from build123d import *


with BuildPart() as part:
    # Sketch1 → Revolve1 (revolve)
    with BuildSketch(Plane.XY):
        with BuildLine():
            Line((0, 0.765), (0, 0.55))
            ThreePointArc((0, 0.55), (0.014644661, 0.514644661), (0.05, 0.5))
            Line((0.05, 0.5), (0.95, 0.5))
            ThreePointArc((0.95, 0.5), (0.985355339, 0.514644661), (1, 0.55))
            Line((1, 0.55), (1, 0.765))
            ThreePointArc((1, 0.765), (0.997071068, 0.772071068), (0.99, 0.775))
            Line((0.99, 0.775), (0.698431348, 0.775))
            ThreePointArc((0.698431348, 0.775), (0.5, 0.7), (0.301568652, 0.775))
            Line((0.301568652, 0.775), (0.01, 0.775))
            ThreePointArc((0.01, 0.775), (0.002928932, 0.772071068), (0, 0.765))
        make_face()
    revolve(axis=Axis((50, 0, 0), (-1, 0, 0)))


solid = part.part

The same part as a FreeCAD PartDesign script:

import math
import FreeCAD as App
import Part
import Sketcher
from FreeCAD import Vector

doc = App.newDocument("Part")
body = doc.addObject("PartDesign::Body", "Body")

# Sketch on XY plane
sketch1 = body.newObject("Sketcher::SketchObject", "Sketch")
sketch1.AttachmentSupport = (doc.getObject("XY_Plane"), [""])
sketch1.MapMode = "FlatFace"
sketch1.addGeometry([
    Part.LineSegment(Vector(0, 0.765, 0), Vector(0, 0.55, 0)),  # 0
    Part.ArcOfCircle(Part.Circle(Vector(0.05, 0.55, 0), Vector(0, 0, 1), 0.05), math.radians(180), math.radians(270)),  # 1
    Part.LineSegment(Vector(0.05, 0.5, 0), Vector(0.95, 0.5, 0)),  # 2
    Part.ArcOfCircle(Part.Circle(Vector(0.95, 0.55, 0), Vector(0, 0, 1), 0.05), math.radians(-90), math.radians(0)),  # 3
    Part.LineSegment(Vector(1, 0.55, 0), Vector(1, 0.765, 0)),  # 4
    Part.ArcOfCircle(Part.Circle(Vector(0.99, 0.765, 0), Vector(0, 0, 1), 0.01), math.radians(0), math.radians(90)),  # 5
    Part.LineSegment(Vector(0.99, 0.775, 0), Vector(0.698, 0.775, 0)),  # 6
    Part.ArcOfCircle(Part.Circle(Vector(0.5, 1, 0), Vector(0, 0, 1), 0.3), math.radians(-131), math.radians(-49)),  # 7
    Part.LineSegment(Vector(0.302, 0.775, 0), Vector(0.01, 0.775, 0)),  # 8
    Part.ArcOfCircle(Part.Circle(Vector(0.01, 0.765, 0), Vector(0, 0, 1), 0.01), math.radians(90), math.radians(180)),  # 9
], False)
sketch1.addConstraint([
    Sketcher.Constraint("Tangent", 0, 2, 1, 1),
    Sketcher.Constraint("Tangent", 1, 2, 2, 1),
    Sketcher.Constraint("Tangent", 2, 2, 3, 1),
    Sketcher.Constraint("Tangent", 3, 2, 4, 1),
    Sketcher.Constraint("Tangent", 4, 2, 5, 1),
    Sketcher.Constraint("Tangent", 5, 2, 6, 1),
    Sketcher.Constraint("Coincident", 6, 2, 7, 2),
    Sketcher.Constraint("Coincident", 7, 1, 8, 1),
    Sketcher.Constraint("Tangent", 8, 2, 9, 1),
    Sketcher.Constraint("Tangent", 9, 2, 0, 1),
    Sketcher.Constraint("Vertical", 0),
    Sketcher.Constraint("Horizontal", 2),
    Sketcher.Constraint("Vertical", 4),
    Sketcher.Constraint("Horizontal", 6),
    Sketcher.Constraint("Horizontal", 8),
    Sketcher.Constraint("Equal", 1, 3),
    Sketcher.Constraint("Equal", 5, 9),
    Sketcher.Constraint("PointOnObject", 0, 2, -2),
    Sketcher.Constraint("Horizontal", 5, 3, 9, 3),
    Sketcher.Constraint("Equal", 6, 8),
    Sketcher.Constraint("Radius", 7, 0.3),
    Sketcher.Constraint("Radius", 1, 0.05),
    Sketcher.Constraint("Radius", 5, 0.01),
    Sketcher.Constraint("DistanceX", 2, 1, 2, 2, 0.9),
    Sketcher.Constraint("DistanceY", -1, 1, 7, 3, 1.0),
    Sketcher.Constraint("DistanceY", -1, 1, 1, 2, 0.5),
    Sketcher.Constraint("DistanceY", 0, 2, 0, 1, 0.215),
])
revolution = body.newObject("PartDesign::Revolution", "Revolution")
revolution.Profile = sketch1
revolution.ReferenceAxis = (sketch1, ["H_Axis"])
revolution.Angle = 360

doc.recompute()
